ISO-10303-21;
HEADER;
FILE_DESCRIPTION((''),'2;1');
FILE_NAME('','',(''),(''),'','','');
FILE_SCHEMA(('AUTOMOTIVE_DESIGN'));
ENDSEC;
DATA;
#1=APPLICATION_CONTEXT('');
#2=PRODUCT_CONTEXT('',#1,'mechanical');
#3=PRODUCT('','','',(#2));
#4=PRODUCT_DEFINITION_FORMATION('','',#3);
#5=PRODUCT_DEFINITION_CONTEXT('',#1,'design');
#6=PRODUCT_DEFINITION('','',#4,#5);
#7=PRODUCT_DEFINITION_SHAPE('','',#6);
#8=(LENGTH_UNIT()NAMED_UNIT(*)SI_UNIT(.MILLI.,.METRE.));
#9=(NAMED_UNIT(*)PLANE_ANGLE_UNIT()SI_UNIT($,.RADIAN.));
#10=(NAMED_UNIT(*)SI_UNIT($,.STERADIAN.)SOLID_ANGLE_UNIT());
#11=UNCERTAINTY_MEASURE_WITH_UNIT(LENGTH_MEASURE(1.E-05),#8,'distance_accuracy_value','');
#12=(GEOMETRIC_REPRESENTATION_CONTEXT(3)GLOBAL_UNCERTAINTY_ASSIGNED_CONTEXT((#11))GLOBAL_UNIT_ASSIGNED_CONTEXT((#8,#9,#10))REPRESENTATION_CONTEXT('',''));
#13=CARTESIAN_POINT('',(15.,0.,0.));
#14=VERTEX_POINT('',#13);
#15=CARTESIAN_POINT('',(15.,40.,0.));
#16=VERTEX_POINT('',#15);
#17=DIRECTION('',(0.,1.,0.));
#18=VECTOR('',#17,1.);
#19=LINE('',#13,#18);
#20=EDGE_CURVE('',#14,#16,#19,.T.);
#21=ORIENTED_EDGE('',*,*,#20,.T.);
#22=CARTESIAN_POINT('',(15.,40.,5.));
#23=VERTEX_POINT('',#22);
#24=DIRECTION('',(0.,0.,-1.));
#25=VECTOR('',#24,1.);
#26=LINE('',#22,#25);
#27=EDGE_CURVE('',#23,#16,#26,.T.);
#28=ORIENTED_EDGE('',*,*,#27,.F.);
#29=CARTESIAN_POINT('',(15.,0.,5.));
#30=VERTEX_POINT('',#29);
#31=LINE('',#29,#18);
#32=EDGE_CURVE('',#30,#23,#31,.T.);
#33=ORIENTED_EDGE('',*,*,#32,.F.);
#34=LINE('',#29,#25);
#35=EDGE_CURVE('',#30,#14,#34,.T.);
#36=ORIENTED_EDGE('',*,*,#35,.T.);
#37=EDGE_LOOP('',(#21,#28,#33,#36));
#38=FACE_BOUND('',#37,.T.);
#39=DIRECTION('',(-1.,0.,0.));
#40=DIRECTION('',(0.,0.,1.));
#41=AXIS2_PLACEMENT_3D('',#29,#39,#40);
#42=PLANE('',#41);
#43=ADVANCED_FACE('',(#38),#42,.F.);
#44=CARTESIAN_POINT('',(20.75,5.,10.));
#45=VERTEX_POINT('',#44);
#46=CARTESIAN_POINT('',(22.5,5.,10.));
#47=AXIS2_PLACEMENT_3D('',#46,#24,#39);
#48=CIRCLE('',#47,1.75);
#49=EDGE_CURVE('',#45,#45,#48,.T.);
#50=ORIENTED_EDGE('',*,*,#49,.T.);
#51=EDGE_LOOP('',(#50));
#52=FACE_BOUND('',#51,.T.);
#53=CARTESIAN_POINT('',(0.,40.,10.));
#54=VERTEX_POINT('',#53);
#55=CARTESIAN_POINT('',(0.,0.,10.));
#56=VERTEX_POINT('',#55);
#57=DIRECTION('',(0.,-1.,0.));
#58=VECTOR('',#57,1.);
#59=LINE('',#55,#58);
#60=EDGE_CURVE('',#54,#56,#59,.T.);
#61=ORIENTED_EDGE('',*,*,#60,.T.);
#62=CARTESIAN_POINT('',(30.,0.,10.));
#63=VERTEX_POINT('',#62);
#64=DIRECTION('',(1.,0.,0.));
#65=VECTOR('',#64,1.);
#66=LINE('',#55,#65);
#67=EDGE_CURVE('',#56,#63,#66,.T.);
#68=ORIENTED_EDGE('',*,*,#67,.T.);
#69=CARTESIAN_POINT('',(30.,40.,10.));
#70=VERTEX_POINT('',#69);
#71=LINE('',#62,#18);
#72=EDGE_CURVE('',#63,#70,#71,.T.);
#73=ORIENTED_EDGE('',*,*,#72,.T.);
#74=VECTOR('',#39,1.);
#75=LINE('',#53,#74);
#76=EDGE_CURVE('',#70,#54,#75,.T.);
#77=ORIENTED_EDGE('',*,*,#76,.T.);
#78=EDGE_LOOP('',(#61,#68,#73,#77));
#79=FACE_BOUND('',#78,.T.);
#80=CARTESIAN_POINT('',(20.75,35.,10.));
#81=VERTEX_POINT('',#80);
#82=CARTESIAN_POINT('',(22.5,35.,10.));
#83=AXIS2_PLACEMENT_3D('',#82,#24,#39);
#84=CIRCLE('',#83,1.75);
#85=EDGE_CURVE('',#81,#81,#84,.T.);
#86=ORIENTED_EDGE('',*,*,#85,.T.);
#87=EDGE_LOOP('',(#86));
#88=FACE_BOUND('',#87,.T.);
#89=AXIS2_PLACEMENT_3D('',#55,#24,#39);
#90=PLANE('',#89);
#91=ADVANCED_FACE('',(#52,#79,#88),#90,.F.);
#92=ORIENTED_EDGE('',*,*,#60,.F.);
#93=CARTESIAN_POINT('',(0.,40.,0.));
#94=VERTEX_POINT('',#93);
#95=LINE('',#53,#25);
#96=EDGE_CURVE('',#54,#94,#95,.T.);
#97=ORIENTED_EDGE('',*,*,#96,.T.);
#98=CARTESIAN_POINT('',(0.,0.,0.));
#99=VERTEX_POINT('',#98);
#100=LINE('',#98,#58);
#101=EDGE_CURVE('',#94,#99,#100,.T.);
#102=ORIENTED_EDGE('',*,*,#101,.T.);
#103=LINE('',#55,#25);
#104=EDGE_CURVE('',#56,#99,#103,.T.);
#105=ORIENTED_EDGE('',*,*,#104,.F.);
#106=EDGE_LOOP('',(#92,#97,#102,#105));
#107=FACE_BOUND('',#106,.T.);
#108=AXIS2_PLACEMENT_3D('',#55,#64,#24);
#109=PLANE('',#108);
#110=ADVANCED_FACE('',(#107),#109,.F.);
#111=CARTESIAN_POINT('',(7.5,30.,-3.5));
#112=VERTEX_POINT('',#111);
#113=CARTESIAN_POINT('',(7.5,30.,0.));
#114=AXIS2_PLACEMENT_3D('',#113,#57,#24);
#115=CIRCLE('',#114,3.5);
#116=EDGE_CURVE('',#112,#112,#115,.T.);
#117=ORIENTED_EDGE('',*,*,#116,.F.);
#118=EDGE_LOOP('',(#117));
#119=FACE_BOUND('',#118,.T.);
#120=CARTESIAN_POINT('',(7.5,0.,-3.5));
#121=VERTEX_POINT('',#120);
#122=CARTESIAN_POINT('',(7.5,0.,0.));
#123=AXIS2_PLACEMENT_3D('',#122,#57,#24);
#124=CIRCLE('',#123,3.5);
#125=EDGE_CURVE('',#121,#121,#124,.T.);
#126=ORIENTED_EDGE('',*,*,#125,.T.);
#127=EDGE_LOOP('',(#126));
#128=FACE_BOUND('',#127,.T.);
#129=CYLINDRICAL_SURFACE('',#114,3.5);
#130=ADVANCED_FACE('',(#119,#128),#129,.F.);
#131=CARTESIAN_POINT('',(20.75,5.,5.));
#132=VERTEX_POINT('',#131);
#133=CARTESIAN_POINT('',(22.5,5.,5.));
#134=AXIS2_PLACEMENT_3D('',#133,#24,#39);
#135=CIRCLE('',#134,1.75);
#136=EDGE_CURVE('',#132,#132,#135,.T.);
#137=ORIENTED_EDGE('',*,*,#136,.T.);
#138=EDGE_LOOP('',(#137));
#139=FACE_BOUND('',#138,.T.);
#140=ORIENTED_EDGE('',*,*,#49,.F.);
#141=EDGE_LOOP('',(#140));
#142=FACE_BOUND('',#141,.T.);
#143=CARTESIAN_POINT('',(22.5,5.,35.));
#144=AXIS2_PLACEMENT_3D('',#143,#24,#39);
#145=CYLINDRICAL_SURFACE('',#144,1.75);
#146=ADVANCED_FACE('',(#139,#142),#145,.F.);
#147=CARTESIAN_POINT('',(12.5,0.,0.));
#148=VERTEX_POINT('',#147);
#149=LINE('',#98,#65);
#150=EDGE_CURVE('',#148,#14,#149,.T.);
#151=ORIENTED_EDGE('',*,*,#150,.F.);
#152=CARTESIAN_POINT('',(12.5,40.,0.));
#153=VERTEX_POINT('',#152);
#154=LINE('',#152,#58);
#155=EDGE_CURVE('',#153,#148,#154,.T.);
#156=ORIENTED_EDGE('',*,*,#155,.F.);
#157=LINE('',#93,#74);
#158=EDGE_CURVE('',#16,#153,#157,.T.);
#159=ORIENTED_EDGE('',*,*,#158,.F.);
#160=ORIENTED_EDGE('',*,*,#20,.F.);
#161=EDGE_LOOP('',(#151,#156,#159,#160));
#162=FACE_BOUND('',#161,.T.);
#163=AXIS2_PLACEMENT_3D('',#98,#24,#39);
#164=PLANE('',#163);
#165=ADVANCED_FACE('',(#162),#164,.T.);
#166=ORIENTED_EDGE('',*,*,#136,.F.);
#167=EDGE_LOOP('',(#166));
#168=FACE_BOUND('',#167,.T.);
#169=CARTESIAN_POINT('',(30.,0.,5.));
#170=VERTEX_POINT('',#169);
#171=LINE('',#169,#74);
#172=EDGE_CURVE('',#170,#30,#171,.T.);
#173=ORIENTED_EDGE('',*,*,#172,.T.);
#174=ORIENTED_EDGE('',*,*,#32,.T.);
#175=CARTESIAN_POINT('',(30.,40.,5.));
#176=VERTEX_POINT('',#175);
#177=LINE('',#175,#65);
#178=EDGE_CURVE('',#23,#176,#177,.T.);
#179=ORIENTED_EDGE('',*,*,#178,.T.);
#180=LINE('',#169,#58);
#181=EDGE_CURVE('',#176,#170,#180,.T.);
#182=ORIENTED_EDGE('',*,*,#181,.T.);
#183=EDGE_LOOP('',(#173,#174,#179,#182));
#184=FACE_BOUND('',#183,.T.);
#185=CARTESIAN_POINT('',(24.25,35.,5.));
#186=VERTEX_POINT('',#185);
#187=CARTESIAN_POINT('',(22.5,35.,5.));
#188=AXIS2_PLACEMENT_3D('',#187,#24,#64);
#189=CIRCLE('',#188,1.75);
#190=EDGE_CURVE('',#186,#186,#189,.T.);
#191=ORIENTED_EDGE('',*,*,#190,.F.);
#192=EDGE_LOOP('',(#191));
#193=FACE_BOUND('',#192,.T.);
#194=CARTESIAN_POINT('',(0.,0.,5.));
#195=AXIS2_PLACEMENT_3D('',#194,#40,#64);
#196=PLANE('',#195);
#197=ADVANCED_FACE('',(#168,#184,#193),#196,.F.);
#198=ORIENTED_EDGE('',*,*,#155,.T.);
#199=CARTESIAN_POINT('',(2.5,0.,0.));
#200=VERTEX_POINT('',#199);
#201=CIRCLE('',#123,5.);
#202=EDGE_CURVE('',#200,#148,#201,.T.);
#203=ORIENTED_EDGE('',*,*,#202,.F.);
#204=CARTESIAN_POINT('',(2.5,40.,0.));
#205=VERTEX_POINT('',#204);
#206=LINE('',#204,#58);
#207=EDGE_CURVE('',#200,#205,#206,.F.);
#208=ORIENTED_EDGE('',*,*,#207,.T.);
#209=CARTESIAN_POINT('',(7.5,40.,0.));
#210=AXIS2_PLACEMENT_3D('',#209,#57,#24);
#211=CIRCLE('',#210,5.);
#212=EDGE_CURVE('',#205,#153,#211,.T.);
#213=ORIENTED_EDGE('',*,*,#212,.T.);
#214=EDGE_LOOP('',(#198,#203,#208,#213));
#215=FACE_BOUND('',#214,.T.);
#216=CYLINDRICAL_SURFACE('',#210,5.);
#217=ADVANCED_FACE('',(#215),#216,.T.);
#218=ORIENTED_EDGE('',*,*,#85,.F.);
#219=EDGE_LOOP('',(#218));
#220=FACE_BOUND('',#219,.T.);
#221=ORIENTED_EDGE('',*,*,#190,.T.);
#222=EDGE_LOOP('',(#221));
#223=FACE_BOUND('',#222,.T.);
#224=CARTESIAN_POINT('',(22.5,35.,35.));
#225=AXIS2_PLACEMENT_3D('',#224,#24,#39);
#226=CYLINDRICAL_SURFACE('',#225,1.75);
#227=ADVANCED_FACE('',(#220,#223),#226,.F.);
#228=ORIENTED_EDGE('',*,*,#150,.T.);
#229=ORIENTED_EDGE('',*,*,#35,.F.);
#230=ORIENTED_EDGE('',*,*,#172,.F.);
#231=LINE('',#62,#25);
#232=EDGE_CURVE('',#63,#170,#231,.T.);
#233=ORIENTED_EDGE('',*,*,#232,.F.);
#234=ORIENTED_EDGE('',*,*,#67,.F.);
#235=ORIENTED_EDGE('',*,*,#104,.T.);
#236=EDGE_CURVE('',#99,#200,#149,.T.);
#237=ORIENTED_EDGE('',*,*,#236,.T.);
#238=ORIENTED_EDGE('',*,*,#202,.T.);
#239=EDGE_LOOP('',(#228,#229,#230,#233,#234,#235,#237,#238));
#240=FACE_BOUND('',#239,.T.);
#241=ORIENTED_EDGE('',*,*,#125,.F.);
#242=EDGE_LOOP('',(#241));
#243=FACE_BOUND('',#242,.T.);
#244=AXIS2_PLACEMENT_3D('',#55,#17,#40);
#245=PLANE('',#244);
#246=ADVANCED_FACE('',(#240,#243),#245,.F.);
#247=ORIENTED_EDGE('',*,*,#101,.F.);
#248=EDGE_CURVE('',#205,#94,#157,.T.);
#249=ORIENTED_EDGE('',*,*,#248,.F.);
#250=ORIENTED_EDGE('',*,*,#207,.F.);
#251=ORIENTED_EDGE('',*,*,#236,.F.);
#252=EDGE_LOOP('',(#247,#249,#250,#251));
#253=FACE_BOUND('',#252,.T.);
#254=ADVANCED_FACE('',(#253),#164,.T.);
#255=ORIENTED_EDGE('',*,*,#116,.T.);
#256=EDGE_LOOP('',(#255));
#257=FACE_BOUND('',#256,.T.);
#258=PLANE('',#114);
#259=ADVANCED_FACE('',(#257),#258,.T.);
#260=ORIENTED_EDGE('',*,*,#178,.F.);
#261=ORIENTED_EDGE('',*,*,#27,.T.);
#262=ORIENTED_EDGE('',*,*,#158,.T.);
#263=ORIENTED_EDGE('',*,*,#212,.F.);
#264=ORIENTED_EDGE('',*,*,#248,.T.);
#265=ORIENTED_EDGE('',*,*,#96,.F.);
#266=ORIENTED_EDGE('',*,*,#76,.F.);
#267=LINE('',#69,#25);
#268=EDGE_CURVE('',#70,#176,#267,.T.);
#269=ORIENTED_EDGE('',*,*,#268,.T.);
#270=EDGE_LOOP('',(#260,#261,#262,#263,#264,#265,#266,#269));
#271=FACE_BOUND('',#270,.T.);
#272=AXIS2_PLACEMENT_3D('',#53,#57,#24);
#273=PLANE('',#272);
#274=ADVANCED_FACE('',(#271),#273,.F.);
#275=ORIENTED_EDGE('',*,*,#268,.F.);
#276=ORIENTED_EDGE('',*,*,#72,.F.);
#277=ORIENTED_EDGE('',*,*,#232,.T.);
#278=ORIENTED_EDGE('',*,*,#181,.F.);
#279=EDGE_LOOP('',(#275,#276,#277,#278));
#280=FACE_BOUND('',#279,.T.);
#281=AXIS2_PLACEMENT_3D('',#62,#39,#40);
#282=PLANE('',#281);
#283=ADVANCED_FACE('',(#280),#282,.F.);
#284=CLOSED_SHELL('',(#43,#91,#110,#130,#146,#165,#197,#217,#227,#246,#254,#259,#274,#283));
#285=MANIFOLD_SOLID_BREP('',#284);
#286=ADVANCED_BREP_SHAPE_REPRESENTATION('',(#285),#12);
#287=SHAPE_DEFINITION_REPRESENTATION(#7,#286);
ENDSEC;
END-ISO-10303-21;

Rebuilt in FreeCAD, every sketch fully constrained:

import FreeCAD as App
import Part
import Sketcher
from FreeCAD import Vector
Q = App.Units.Quantity


def add_polygon(sketch, points):
    """Adds a closed chain of lines whose ends are joined by coincident constraints."""
    first, n = sketch.GeometryCount, len(points)
    for a, b in zip(points, points[1:] + points[:1]):
        sketch.addGeometry(Part.LineSegment(App.Vector(*a, 0), App.Vector(*b, 0)), False)
    for i in range(n):
        sketch.addConstraint(Sketcher.Constraint("Coincident", first + i, 2, first + (i + 1) % n, 1))

doc = App.newDocument("Part")
params = doc.addObject("Spreadsheet::Sheet", "Params")
for row, (alias, value) in enumerate([
    ("sketch1_width", "30 mm"),
    ("sketch1_height", "40 mm"),
    ("pad1_length", "10 mm"),
    ("sketch2_width", "15 mm"),
    ("sketch2_height", "40 mm"),
    ("pocket1_length", "5 mm"),
    ("sketch3_diameter", "3.5 mm"),
    ("pocket2_length", "30 mm"),
    ("sketch4_diameter", "10 mm"),
    ("pad2_length", "40 mm"),
    ("sketch5_diameter", "7 mm"),
    ("pocket3_length", "30 mm"),
], start=1):
    params.set(f"A{row}", alias)
    params.set(f"B{row}", "=" + value)
    params.setAlias(f"B{row}", alias)

body = doc.addObject("PartDesign::Body", "Body")

# Sketch on XY plane
sketch1 = body.newObject("Sketcher::SketchObject", "Sketch")
sketch1.AttachmentSupport = (doc.getObject("XY_Plane"), [""])
sketch1.MapMode = "FlatFace"
add_polygon(sketch1, [(0, 40), (0, 0), (30, 0), (30, 40)])  # lines 0-3
sketch1.addConstraint([
    Sketcher.Constraint("Vertical", 0),
    Sketcher.Constraint("Horizontal", 1),
    Sketcher.Constraint("Vertical", 2),
    Sketcher.Constraint("Horizontal", 3),
    Sketcher.Constraint("Coincident", 0, 2, -1, 1),
    Sketcher.Constraint("DistanceX", 1, 1, 1, 2, Q("30 mm")),
    Sketcher.Constraint("DistanceY", 0, 2, 0, 1, Q("40 mm")),
])
sketch1.setExpression("Constraints[9]", "Params.sketch1_width")
sketch1.setExpression("Constraints[10]", "Params.sketch1_height")
pad1 = body.newObject("PartDesign::Pad", "Pad")
pad1.Profile = sketch1
pad1.setExpression("Length", "Params.pad1_length")

# Sketch on XY plane
sketch2 = body.newObject("Sketcher::SketchObject", "Sketch001")
sketch2.AttachmentSupport = (doc.getObject("XY_Plane"), [""])
sketch2.MapMode = "FlatFace"
add_polygon(sketch2, [(30, 40), (30, 0), (15, 0), (15, 40)])  # lines 0-3
sketch2.addConstraint([
    Sketcher.Constraint("Vertical", 0),
    Sketcher.Constraint("Horizontal", 1),
    Sketcher.Constraint("Vertical", 2),
    Sketcher.Constraint("Horizontal", 3),
    Sketcher.Constraint("PointOnObject", 0, 2, -1),
    Sketcher.Constraint("DistanceX", 1, 2, 1, 1, Q("15 mm")),
    Sketcher.Constraint("DistanceY", 0, 2, 0, 1, Q("40 mm")),
    Sketcher.Constraint("DistanceX", -1, 1, 0, 2, Q("30 mm")),
])
sketch2.setExpression("Constraints[9]", "Params.sketch2_width")
sketch2.setExpression("Constraints[10]", "Params.sketch2_height")
pocket1 = body.newObject("PartDesign::Pocket", "Pocket")
pocket1.Profile = sketch2
pocket1.setExpression("Length", "Params.pocket1_length")
pocket1.Reversed = True

# Sketch on XY plane
sketch3 = body.newObject("Sketcher::SketchObject", "Sketch002")
sketch3.AttachmentSupport = (doc.getObject("XY_Plane"), [""])
sketch3.MapMode = "FlatFace"
sketch3.AttachmentOffset = App.Placement(Vector(0, 0, 5), App.Rotation())
sketch3.addGeometry([
    Part.Circle(Vector(22.5, 5, 0), Vector(0, 0, 1), 1.8),
    Part.Circle(Vector(22.5, 35, 0), Vector(0, 0, 1), 1.8),
], False)
sketch3.addConstraint([
    Sketcher.Constraint("Equal", 0, 1),
    Sketcher.Constraint("Vertical", 0, 3, 1, 3),
    Sketcher.Constraint("Diameter", 0, Q("3.5 mm")),
    Sketcher.Constraint("DistanceY", -1, 1, 0, 3, Q("5 mm")),
    Sketcher.Constraint("DistanceY", -1, 1, 1, 3, Q("35 mm")),
    Sketcher.Constraint("DistanceX", -1, 1, 0, 3, Q("22.5 mm")),
])
sketch3.setExpression("Constraints[2]", "Params.sketch3_diameter")
pocket2 = body.newObject("PartDesign::Pocket", "Pocket001")
pocket2.Profile = sketch3
pocket2.setExpression("Length", "Params.pocket2_length")
pocket2.Reversed = True

# Sketch on XZ plane
sketch4 = body.newObject("Sketcher::SketchObject", "Sketch003")
sketch4.AttachmentSupport = (doc.getObject("XZ_Plane"), [""])
sketch4.MapMode = "FlatFace"
sketch4.addGeometry(Part.Circle(Vector(8, 0, 0), Vector(0, 0, 1), 5), False)
sketch4.addConstraint([
    Sketcher.Constraint("PointOnObject", 0, 3, -1),
    Sketcher.Constraint("Diameter", 0, Q("10 mm")),
    Sketcher.Constraint("DistanceX", -1, 1, 0, 3, Q("7.5 mm")),
])
sketch4.setExpression("Constraints[1]", "Params.sketch4_diameter")
pad2 = body.newObject("PartDesign::Pad", "Pad001")
pad2.Profile = sketch4
pad2.setExpression("Length", "Params.pad2_length")
pad2.Reversed = True

# Sketch on XZ plane
sketch5 = body.newObject("Sketcher::SketchObject", "Sketch004")
sketch5.AttachmentSupport = (doc.getObject("XZ_Plane"), [""])
sketch5.MapMode = "FlatFace"
sketch5.addGeometry(Part.Circle(Vector(7.5, 0, 0), Vector(0, 0, 1), 3.5), False)
sketch5.addConstraint([
    Sketcher.Constraint("PointOnObject", 0, 3, -1),
    Sketcher.Constraint("Diameter", 0, Q("7 mm")),
    Sketcher.Constraint("DistanceX", -1, 1, 0, 3, Q("7.5 mm")),
])
sketch5.setExpression("Constraints[1]", "Params.sketch5_diameter")
pocket3 = body.newObject("PartDesign::Pocket", "Pocket002")
pocket3.Profile = sketch5
pocket3.setExpression("Length", "Params.pocket3_length")

doc.recompute()
